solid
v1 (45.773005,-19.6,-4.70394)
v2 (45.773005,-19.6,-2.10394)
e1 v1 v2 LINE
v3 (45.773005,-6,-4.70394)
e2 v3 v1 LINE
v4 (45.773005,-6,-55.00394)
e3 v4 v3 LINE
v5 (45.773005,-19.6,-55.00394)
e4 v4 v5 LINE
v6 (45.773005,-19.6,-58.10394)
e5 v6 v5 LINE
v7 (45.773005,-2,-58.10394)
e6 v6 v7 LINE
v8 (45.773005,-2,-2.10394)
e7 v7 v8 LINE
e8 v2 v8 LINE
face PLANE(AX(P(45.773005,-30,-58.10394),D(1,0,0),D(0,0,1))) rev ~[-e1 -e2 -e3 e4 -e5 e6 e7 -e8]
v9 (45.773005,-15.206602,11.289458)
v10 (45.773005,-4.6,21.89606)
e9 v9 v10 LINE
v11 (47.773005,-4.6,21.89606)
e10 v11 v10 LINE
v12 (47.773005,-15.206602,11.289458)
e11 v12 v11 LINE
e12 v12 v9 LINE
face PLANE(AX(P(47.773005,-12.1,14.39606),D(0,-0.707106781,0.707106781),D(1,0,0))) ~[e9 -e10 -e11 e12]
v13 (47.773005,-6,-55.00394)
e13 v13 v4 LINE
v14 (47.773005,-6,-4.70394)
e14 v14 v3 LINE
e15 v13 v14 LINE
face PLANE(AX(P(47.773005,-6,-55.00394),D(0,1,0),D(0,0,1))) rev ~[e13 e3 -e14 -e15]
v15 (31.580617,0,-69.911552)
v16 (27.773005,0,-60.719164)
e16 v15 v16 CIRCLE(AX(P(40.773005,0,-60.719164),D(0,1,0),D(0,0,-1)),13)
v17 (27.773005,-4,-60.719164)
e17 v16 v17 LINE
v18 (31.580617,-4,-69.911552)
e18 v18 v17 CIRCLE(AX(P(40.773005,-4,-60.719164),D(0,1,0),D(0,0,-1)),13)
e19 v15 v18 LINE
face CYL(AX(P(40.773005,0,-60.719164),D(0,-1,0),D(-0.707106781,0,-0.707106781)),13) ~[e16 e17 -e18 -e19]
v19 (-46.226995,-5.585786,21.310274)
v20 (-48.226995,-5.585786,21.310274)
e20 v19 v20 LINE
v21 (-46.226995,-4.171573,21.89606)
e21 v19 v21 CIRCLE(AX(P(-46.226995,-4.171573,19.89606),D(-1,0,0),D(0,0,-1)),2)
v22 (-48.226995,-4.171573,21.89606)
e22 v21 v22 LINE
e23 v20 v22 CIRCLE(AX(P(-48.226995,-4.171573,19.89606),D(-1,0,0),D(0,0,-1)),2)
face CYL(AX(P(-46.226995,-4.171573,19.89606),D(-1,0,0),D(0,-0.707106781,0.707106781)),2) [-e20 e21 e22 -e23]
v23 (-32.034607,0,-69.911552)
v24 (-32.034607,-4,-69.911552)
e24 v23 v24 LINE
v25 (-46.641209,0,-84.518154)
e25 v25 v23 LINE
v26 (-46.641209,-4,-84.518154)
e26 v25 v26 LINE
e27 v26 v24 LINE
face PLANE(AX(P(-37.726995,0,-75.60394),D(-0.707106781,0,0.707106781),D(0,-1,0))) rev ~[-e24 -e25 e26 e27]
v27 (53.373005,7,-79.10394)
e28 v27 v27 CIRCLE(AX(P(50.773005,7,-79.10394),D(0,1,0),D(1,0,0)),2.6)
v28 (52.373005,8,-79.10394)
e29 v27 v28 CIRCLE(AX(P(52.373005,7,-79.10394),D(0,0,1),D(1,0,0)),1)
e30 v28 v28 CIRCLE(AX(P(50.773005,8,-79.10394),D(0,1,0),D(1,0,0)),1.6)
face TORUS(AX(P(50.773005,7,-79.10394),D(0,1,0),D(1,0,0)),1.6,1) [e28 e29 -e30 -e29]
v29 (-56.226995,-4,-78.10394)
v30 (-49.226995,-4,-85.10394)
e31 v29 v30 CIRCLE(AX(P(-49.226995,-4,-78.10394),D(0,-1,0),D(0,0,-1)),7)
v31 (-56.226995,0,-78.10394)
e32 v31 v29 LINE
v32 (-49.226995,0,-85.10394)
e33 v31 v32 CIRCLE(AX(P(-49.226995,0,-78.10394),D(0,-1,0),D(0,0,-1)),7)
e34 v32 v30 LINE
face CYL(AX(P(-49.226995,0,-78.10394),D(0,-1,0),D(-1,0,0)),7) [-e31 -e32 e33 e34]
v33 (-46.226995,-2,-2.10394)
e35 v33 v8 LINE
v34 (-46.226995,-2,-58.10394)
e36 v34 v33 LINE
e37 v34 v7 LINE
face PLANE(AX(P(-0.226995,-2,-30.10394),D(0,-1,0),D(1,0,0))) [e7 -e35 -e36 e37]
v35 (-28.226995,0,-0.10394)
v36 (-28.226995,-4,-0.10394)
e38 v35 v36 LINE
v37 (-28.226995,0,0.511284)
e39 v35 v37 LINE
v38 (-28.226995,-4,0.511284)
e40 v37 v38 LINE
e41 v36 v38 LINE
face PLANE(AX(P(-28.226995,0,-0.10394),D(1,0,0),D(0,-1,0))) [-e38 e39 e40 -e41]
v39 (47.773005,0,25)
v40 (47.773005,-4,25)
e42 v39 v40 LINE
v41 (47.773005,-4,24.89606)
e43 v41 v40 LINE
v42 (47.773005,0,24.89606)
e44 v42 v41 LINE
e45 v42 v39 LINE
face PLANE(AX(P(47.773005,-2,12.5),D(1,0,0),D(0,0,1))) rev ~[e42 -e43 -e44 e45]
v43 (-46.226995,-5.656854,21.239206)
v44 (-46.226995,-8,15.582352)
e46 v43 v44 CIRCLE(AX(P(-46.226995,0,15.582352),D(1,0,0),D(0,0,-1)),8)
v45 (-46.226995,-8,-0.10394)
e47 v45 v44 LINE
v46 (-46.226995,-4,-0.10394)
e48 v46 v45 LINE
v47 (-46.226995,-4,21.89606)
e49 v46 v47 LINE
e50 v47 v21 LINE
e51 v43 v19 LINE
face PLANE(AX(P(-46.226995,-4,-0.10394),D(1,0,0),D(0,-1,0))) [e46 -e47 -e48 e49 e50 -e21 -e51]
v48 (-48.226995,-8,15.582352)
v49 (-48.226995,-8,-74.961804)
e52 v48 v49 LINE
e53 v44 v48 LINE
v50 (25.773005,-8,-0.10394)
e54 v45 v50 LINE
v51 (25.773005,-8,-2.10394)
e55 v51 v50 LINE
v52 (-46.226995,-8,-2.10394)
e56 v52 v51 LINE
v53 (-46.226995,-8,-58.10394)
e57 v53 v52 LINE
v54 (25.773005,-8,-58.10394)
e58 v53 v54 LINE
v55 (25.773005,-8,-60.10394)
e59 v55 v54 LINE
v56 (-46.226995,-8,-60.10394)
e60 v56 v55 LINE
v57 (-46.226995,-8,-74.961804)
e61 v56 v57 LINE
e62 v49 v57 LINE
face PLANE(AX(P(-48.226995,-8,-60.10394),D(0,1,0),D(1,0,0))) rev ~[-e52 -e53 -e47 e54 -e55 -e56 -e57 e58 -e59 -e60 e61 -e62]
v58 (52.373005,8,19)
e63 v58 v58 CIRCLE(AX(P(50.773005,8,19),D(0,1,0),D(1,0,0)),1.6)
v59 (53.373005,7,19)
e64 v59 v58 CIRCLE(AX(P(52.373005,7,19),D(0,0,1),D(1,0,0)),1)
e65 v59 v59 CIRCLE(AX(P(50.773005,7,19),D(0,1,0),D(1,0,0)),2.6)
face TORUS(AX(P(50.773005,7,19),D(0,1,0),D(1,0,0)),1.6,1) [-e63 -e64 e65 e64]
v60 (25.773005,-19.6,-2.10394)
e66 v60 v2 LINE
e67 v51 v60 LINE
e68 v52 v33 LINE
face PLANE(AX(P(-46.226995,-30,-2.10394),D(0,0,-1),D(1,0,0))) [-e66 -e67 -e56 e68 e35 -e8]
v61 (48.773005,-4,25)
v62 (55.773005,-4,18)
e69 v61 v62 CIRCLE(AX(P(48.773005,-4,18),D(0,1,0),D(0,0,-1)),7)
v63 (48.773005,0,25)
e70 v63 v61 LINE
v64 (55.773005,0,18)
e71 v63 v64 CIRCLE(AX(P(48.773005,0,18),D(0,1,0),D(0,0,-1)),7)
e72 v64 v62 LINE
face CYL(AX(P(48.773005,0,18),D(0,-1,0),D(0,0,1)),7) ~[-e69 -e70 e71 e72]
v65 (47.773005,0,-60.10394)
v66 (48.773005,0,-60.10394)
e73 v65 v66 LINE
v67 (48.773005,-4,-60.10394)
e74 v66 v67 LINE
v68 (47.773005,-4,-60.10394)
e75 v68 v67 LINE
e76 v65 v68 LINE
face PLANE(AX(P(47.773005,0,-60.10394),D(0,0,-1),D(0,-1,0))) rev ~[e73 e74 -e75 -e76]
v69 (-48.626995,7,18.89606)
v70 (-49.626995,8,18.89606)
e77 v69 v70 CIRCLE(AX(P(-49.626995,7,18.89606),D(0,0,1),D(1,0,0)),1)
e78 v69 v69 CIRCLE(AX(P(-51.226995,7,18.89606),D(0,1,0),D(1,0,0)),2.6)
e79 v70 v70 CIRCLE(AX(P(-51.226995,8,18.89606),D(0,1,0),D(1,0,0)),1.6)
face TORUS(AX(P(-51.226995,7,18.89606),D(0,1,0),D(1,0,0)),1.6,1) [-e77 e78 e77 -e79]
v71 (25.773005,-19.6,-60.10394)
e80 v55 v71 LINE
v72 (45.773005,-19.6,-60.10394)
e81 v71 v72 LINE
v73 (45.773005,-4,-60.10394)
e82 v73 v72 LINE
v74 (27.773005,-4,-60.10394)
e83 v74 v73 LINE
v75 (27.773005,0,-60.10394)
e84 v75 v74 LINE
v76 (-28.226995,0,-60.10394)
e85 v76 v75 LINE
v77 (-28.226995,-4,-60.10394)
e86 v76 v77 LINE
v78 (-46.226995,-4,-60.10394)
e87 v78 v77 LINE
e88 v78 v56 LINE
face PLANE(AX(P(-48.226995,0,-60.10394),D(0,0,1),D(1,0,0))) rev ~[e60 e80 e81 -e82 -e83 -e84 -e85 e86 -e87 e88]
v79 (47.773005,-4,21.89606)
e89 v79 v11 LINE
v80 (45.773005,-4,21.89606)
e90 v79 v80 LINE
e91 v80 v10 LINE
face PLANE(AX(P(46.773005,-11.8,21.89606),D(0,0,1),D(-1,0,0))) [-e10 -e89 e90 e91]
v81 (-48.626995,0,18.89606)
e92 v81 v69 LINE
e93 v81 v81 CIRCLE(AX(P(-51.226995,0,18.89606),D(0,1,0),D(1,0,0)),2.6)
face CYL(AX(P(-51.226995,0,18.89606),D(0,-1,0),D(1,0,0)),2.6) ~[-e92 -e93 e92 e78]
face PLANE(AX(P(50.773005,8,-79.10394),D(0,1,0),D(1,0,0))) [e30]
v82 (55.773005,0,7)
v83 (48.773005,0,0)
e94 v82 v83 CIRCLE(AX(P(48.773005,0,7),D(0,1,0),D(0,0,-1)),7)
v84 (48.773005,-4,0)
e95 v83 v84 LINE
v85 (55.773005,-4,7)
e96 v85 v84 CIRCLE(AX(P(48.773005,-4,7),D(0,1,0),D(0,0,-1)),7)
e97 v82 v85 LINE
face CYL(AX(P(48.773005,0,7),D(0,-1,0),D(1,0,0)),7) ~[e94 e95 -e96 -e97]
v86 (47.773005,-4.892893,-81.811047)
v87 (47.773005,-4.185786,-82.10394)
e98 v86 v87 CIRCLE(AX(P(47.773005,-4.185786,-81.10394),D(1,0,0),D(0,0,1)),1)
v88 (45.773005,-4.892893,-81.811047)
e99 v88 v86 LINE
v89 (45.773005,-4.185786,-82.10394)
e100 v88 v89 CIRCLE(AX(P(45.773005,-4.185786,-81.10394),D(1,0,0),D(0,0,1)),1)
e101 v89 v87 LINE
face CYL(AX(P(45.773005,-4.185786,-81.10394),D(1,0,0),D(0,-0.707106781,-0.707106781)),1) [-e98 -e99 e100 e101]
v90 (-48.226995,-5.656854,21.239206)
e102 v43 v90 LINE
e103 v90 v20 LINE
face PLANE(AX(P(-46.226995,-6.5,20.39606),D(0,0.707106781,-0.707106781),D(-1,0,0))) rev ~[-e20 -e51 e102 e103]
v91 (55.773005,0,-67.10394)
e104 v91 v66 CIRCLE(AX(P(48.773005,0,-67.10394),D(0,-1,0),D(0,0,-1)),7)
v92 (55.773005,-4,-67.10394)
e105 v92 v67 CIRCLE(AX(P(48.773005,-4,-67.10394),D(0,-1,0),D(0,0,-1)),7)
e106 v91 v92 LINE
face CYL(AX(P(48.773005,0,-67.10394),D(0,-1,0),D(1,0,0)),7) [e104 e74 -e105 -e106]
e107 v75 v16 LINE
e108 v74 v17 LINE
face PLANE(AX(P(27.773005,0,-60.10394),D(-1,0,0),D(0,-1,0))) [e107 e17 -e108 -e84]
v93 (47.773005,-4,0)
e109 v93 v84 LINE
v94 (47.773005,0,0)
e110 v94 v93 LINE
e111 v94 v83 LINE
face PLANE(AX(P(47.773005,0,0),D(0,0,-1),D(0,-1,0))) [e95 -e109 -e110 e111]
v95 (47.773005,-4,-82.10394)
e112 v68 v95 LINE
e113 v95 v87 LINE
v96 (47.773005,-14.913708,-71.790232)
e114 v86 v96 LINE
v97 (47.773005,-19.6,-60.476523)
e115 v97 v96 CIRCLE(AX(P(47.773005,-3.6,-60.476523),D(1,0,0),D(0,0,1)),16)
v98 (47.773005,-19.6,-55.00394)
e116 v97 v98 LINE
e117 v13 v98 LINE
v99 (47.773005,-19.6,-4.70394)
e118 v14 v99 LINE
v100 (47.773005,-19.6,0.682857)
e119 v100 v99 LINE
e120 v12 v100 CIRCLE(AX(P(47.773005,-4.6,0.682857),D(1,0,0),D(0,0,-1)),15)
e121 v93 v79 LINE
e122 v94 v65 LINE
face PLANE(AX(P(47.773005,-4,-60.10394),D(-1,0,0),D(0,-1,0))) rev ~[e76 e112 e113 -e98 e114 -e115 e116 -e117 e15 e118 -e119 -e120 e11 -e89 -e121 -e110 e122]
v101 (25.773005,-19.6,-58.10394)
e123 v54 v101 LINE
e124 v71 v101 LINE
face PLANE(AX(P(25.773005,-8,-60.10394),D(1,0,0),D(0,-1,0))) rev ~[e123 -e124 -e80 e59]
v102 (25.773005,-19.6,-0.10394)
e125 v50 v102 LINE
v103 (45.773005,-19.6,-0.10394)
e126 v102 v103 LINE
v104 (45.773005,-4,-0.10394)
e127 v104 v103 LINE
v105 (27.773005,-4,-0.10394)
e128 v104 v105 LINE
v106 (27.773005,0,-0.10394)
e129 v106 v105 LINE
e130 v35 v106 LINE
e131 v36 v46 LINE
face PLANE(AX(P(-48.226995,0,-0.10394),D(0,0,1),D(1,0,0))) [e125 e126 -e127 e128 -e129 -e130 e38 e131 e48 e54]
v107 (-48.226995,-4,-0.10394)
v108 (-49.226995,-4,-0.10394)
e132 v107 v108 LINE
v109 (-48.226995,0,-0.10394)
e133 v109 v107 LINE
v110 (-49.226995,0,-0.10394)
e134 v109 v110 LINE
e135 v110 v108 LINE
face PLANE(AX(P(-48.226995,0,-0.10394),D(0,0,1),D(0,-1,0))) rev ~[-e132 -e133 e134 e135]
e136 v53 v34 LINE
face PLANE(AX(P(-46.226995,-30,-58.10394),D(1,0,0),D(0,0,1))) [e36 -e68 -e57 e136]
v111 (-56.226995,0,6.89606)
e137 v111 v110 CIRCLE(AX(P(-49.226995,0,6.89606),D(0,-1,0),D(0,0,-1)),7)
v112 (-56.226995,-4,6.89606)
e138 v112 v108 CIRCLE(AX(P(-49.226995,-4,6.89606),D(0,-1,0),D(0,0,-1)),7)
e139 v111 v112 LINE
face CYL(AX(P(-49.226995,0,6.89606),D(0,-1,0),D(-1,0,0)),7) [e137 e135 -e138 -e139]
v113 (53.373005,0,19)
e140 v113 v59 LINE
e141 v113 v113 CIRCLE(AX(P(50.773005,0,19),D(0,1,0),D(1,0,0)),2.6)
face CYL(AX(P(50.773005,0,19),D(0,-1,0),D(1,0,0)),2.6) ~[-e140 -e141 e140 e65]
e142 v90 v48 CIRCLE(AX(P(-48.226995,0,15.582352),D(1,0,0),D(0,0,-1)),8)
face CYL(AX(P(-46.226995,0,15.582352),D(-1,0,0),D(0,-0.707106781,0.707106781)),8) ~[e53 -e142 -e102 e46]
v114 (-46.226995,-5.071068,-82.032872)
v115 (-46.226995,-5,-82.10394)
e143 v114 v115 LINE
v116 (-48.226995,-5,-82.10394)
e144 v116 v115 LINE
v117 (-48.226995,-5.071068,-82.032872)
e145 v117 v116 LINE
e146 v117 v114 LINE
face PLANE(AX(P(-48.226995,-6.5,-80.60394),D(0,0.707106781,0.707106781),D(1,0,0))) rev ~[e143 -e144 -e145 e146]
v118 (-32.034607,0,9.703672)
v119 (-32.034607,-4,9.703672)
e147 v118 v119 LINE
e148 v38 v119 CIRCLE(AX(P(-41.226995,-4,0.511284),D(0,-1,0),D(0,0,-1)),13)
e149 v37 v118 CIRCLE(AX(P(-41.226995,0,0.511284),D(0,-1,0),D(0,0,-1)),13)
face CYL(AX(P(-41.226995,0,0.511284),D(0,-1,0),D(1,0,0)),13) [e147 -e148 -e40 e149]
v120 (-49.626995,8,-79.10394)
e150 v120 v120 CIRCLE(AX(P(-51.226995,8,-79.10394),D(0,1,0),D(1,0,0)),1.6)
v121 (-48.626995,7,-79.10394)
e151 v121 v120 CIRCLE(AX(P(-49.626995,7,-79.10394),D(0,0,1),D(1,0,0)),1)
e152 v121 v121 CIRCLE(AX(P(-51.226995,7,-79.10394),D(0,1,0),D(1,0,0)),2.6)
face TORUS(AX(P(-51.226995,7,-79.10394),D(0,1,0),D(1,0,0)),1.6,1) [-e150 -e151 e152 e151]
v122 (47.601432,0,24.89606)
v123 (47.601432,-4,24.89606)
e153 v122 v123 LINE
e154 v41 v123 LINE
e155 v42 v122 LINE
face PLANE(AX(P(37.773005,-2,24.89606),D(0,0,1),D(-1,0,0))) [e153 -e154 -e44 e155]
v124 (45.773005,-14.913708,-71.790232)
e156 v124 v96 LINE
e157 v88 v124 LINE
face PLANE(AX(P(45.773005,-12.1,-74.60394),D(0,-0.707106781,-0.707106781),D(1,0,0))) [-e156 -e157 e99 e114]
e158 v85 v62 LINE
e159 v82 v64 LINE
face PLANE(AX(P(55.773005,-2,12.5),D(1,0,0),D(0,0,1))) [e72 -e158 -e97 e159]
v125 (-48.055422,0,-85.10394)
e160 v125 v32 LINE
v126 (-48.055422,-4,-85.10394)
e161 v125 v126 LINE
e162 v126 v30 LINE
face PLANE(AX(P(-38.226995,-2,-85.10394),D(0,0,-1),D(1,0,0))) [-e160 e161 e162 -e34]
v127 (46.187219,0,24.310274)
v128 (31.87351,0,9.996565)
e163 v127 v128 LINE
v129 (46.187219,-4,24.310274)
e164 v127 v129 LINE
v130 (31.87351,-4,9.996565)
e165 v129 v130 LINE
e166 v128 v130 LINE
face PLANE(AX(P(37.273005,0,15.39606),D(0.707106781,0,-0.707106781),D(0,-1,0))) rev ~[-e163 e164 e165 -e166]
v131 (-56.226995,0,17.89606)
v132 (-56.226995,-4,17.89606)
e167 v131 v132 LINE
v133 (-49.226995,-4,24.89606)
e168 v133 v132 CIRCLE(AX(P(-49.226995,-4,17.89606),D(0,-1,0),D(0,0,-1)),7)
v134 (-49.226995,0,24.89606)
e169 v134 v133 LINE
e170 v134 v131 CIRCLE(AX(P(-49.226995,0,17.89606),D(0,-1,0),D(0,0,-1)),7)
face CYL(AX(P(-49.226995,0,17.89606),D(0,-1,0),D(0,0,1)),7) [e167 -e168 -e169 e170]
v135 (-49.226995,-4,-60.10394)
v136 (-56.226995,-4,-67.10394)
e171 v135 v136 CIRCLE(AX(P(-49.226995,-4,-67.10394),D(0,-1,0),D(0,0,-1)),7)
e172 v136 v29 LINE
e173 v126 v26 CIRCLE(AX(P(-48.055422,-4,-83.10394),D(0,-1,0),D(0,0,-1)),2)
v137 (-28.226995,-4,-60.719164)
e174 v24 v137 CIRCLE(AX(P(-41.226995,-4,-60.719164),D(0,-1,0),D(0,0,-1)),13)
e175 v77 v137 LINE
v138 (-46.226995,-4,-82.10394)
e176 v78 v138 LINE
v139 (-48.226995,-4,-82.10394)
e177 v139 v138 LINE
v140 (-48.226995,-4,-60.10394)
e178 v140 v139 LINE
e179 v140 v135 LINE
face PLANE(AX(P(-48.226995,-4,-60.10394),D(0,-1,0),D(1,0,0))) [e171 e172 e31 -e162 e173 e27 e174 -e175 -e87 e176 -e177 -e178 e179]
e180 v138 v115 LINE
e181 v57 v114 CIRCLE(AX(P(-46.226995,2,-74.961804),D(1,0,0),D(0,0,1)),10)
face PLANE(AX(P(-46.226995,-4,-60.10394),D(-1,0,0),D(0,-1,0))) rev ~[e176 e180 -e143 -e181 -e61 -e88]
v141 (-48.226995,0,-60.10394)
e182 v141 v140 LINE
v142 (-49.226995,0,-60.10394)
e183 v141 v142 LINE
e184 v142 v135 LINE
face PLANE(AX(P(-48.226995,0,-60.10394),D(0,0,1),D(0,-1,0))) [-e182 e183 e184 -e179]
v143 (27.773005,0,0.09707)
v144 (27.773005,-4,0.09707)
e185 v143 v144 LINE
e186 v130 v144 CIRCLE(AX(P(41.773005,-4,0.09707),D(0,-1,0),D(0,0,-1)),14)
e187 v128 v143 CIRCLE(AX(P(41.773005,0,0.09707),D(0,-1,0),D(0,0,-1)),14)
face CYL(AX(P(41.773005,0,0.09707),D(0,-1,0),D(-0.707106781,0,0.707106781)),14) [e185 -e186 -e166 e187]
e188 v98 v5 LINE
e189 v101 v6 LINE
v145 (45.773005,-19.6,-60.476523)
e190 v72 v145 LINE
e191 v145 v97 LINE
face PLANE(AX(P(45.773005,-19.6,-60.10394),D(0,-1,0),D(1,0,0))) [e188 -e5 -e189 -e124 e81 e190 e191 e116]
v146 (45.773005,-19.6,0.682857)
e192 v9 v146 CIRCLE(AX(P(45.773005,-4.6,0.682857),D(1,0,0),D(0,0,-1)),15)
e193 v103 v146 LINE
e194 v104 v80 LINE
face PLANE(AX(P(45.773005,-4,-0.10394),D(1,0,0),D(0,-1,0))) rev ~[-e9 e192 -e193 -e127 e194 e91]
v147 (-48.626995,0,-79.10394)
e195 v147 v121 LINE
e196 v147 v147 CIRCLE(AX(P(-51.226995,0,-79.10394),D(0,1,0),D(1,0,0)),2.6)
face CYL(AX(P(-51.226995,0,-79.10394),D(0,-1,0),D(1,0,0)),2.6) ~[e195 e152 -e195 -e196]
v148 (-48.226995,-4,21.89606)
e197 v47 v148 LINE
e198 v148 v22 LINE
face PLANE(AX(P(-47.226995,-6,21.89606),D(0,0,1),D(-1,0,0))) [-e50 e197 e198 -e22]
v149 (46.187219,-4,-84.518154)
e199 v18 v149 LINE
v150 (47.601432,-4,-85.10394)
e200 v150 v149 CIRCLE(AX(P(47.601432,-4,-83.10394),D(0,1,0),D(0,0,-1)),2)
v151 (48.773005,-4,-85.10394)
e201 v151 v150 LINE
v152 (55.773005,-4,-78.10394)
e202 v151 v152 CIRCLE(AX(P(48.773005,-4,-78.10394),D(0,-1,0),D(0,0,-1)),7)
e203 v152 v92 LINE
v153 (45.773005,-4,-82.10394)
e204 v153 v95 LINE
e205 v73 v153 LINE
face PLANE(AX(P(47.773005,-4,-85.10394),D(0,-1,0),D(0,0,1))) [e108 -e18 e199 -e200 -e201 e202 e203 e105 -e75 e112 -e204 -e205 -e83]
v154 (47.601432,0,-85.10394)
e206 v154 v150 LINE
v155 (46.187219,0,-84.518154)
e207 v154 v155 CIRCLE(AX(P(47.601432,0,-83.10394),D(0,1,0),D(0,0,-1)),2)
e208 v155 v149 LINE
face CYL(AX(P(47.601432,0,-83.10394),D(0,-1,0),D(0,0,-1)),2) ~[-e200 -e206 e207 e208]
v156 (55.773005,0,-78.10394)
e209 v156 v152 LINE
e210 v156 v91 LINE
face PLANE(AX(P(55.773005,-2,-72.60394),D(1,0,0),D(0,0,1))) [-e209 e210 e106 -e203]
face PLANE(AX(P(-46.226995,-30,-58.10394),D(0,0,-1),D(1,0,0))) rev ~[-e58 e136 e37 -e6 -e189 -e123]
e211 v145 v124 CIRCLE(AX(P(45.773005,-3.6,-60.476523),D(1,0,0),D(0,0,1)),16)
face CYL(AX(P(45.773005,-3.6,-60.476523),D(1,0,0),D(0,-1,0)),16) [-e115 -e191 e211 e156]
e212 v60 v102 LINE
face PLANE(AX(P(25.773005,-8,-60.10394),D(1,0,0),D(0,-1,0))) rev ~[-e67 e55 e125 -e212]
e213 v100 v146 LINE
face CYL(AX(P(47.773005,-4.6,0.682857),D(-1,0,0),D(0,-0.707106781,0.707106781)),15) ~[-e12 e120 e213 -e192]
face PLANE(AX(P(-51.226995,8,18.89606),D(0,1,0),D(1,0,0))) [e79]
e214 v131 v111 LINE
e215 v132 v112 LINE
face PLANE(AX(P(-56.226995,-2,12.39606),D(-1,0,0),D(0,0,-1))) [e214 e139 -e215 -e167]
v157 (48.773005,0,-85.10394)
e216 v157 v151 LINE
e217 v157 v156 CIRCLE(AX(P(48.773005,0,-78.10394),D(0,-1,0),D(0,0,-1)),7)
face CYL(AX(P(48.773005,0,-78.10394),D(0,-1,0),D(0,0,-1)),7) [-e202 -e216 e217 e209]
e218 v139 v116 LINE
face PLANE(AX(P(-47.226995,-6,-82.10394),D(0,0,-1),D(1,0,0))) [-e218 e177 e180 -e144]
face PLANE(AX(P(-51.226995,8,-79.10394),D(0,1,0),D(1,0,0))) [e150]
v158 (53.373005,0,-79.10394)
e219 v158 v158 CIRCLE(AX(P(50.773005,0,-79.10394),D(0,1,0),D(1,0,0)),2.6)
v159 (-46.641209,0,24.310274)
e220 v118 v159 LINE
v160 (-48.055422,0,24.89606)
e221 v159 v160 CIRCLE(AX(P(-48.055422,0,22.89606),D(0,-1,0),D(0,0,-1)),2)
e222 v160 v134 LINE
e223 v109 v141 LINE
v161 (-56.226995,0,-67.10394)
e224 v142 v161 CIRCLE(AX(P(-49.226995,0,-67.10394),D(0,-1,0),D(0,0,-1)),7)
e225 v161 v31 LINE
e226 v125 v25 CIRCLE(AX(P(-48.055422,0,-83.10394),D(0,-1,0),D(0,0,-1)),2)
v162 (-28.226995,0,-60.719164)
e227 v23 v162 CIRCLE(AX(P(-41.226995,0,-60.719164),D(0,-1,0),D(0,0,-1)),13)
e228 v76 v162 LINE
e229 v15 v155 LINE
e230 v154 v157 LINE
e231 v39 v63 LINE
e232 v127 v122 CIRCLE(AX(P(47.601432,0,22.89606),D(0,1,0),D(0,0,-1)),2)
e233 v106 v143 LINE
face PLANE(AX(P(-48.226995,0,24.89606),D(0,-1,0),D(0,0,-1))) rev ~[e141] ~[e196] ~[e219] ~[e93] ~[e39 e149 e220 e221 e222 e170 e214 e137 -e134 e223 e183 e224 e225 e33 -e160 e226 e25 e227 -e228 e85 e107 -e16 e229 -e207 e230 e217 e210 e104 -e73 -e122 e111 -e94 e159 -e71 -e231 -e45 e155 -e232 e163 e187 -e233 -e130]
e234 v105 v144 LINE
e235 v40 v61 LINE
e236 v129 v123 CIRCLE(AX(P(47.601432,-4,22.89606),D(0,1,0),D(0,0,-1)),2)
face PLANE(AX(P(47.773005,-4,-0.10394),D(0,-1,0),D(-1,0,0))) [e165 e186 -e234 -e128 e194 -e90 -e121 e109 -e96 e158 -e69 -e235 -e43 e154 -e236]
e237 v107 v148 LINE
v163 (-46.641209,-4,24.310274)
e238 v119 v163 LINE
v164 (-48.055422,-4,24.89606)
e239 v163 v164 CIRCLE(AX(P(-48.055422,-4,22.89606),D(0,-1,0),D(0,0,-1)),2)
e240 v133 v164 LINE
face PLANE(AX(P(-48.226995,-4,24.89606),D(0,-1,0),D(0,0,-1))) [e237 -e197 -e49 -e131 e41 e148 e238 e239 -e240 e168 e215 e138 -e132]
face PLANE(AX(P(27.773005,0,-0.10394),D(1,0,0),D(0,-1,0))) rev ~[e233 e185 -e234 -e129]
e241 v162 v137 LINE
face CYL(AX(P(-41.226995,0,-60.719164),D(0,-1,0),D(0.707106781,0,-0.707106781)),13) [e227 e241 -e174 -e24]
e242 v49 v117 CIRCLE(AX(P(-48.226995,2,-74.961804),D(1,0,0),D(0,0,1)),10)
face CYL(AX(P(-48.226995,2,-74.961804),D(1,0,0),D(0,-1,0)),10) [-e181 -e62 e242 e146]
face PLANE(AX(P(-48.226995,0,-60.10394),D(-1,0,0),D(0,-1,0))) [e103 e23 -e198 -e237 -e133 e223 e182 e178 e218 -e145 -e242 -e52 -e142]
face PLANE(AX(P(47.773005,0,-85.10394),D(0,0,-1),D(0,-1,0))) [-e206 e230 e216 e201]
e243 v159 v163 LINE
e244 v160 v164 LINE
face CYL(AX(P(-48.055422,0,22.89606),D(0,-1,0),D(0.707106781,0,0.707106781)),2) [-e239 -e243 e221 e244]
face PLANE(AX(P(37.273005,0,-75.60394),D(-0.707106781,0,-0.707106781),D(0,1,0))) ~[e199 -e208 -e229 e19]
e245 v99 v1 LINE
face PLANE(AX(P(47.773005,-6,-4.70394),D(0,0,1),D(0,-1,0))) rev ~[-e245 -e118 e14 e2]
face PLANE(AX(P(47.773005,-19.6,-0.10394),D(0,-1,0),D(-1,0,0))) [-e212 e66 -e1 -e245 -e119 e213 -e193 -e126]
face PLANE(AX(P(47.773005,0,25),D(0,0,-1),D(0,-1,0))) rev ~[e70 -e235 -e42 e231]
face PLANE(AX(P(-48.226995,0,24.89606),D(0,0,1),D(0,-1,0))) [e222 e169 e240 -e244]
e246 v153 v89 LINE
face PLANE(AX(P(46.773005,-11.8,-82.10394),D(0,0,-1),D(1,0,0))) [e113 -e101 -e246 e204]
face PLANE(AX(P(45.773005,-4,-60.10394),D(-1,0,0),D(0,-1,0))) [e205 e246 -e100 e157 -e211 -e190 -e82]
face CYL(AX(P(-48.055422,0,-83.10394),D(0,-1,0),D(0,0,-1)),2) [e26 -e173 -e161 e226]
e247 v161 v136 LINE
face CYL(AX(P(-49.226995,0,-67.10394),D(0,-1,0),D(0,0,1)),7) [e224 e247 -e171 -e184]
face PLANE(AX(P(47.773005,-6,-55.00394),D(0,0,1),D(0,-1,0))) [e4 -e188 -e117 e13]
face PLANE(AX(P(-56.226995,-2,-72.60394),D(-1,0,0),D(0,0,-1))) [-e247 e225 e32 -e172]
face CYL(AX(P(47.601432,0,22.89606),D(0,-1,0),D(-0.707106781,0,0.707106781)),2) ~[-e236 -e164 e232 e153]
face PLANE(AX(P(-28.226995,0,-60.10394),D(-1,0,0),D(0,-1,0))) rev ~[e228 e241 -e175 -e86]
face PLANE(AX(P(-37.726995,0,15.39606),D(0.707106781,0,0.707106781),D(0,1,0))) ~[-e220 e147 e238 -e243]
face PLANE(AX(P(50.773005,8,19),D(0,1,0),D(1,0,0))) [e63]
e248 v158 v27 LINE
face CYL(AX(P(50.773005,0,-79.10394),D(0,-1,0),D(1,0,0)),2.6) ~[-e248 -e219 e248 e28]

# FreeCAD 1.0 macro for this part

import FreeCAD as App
import Part
import Sketcher
Q = App.Units.Quantity


def edges_at(feature, points):
    """Names of the edges that pass closest to the given points."""
    edges = feature.Shape.Edges
    near = lambda p: min(range(len(edges)), key=lambda i: edges[i].distToShape(Part.Vertex(*p))[0])
    return sorted({f"Edge{near(p) + 1}" for p in points})

doc = App.newDocument("Part")
body = doc.addObject("PartDesign::Body", "Body")

sketch1 = body.newObject("Sketcher::SketchObject", "Sketch")
sketch1.AttachmentSupport = (doc.getObject("XZ_Plane"), [""])
sketch1.MapMode = "FlatFace"
sketch1.addGeometry([
    Part.LineSegment(App.Vector(-48, 0, 0), App.Vector(-48, -60, 0)),
    Part.LineSegment(App.Vector(-48, -60, 0), App.Vector(48, -60, 0)),
    Part.LineSegment(App.Vector(48, -60, 0), App.Vector(48, 0, 0)),
    Part.LineSegment(App.Vector(48, 0, 0), App.Vector(-48, 0, 0)),
], False)
sketch1.addConstraint([
    Sketcher.Constraint("Coincident", 0, 2, 1, 1),
    Sketcher.Constraint("Coincident", 1, 2, 2, 1),
    Sketcher.Constraint("Coincident", 2, 2, 3, 1),
    Sketcher.Constraint("Coincident", 3, 2, 0, 1),
    Sketcher.Constraint("Vertical", 0),
    Sketcher.Constraint("Horizontal", 1),
    Sketcher.Constraint("Vertical", 2),
    Sketcher.Constraint("Horizontal", 3),
    Sketcher.Constraint("DistanceX", 1, 1, 1, 2, Q("96 mm")),
    Sketcher.Constraint("DistanceY", 0, 2, 0, 1, Q("60 mm")),
    Sketcher.Constraint("DistanceY", 0, 2, -1, 1, Q("60.10394 mm")),
    Sketcher.Constraint("DistanceX", 0, 2, -1, 1, Q("48.226995 mm")),
])
pad1 = body.newObject("PartDesign::Pad", "Pad")
pad1.Profile = sketch1
pad1.Length = 30

sketch2 = body.newObject("Sketcher::SketchObject", "Sketch001")
sketch2.AttachmentSupport = (doc.getObject("XZ_Plane"), [""])
sketch2.MapMode = "FlatFace"
sketch2.AttachmentOffset = App.Placement(App.Vector(0, 0, 30), App.Rotation())
sketch2.addGeometry([
    Part.LineSegment(App.Vector(-46, -2, 0), App.Vector(-46, -58, 0)),
    Part.LineSegment(App.Vector(-46, -58, 0), App.Vector(46, -58, 0)),
    Part.LineSegment(App.Vector(46, -58, 0), App.Vector(46, -2, 0)),
    Part.LineSegment(App.Vector(46, -2, 0), App.Vector(-46, -2, 0)),
], False)
sketch2.addConstraint([
    Sketcher.Constraint("Coincident", 0, 2, 1, 1),
    Sketcher.Constraint("Coincident", 1, 2, 2, 1),
    Sketcher.Constraint("Coincident", 2, 2, 3, 1),
    Sketcher.Constraint("Coincident", 3, 2, 0, 1),
    Sketcher.Constraint("Vertical", 0),
    Sketcher.Constraint("Horizontal", 1),
    Sketcher.Constraint("Vertical", 2),
    Sketcher.Constraint("Horizontal", 3),
    Sketcher.Constraint("DistanceX", 1, 1, 1, 2, Q("92 mm")),
    Sketcher.Constraint("DistanceY", 0, 2, 0, 1, Q("56 mm")),
    Sketcher.Constraint("DistanceY", 0, 2, -1, 1, Q("58.10394 mm")),
    Sketcher.Constraint("DistanceX", 0, 2, -1, 1, Q("46.226995 mm")),
])
pocket1 = body.newObject("PartDesign::Pocket", "Pocket")
pocket1.Profile = sketch2
pocket1.Length = 28

sketch3 = body.newObject("Sketcher::SketchObject", "Sketch002")
sketch3.AttachmentSupport = (doc.getObject("XY_Plane"), [""])
sketch3.MapMode = "FlatFace"
sketch3.AttachmentOffset = App.Placement(App.Vector(0, 0, -60.10394), App.Rotation())
sketch3.addGeometry([
    Part.LineSegment(App.Vector(-48, -30, 0), App.Vector(-48, -8, 0)),
    Part.LineSegment(App.Vector(-48, -8, 0), App.Vector(26, -8, 0)),
    Part.LineSegment(App.Vector(26, -8, 0), App.Vector(26, -30, 0)),
    Part.LineSegment(App.Vector(26, -30, 0), App.Vector(-48, -30, 0)),
], False)
sketch3.addConstraint([
    Sketcher.Constraint("Coincident", 0, 2, 1, 1),
    Sketcher.Constraint("Coincident", 1, 2, 2, 1),
    Sketcher.Constraint("Coincident", 2, 2, 3, 1),
    Sketcher.Constraint("Coincident", 3, 2, 0, 1),
    Sketcher.Constraint("Vertical", 0),
    Sketcher.Constraint("Horizontal", 1),
    Sketcher.Constraint("Vertical", 2),
    Sketcher.Constraint("Horizontal", 3),
    Sketcher.Constraint("DistanceX", 1, 1, 1, 2, Q("74 mm")),
    Sketcher.Constraint("DistanceY", 0, 1, 0, 2, Q("22 mm")),
    Sketcher.Constraint("DistanceY", 0, 2, -1, 1, Q("8 mm")),
    Sketcher.Constraint("DistanceX", 0, 2, -1, 1, Q("48.226995 mm")),
])
pocket2 = body.newObject("PartDesign::Pocket", "Pocket001")
pocket2.Profile = sketch3
pocket2.Length = 60
pocket2.Reversed = True

sketch4 = body.newObject("Sketcher::SketchObject", "Sketch003")
sketch4.AttachmentSupport = (doc.getObject("XY_Plane"), [""])
sketch4.MapMode = "FlatFace"
sketch4.AttachmentOffset = App.Placement(App.Vector(0, 0, -60.10394), App.Rotation())
sketch4.addGeometry([
    Part.LineSegment(App.Vector(25.8, -30, 0), App.Vector(25.8, -26, 0)),
    Part.LineSegment(App.Vector(25.8, -26, 0), App.Vector(47.8, -26, 0)),
    Part.LineSegment(App.Vector(47.8, -26, 0), App.Vector(47.8, -30, 0)),
    Part.LineSegment(App.Vector(47.8, -30, 0), App.Vector(25.8, -30, 0)),
], False)
sketch4.addConstraint([
    Sketcher.Constraint("Coincident", 0, 2, 1, 1),
    Sketcher.Constraint("Coincident", 1, 2, 2, 1),
    Sketcher.Constraint("Coincident", 2, 2, 3, 1),
    Sketcher.Constraint("Coincident", 3, 2, 0, 1),
    Sketcher.Constraint("Vertical", 0),
    Sketcher.Constraint("Horizontal", 1),
    Sketcher.Constraint("Vertical", 2),
    Sketcher.Constraint("Horizontal", 3),
    Sketcher.Constraint("DistanceX", 1, 1, 1, 2, Q("22 mm")),
    Sketcher.Constraint("DistanceY", 0, 1, 0, 2, Q("4 mm")),
    Sketcher.Constraint("DistanceY", 0, 2, -1, 1, Q("26 mm")),
    Sketcher.Constraint("DistanceX", -1, 1, 0, 2, Q("25.773005 mm")),
])
pocket3 = body.newObject("PartDesign::Pocket", "Pocket002")
pocket3.Profile = sketch4
pocket3.Length = 60
pocket3.Reversed = True

sketch5 = body.newObject("Sketcher::SketchObject", "Sketch004")
sketch5.AttachmentSupport = (doc.getObject("XY_Plane"), [""])
sketch5.MapMode = "FlatFace"
sketch5.AttachmentOffset = App.Placement(App.Vector(0, 0, -60.10394), App.Rotation())
sketch5.addGeometry([
    Part.LineSegment(App.Vector(26, -26, 0), App.Vector(26, -20, 0)),
    Part.LineSegment(App.Vector(26, -20, 0), App.Vector(48, -20, 0)),
    Part.LineSegment(App.Vector(48, -20, 0), App.Vector(48, -26, 0)),
    Part.LineSegment(App.Vector(48, -26, 0), App.Vector(26, -26, 0)),
], False)
sketch5.addConstraint([
    Sketcher.Constraint("Coincident", 0, 2, 1, 1),
    Sketcher.Constraint("Coincident", 1, 2, 2, 1),
    Sketcher.Constraint("Coincident", 2, 2, 3, 1),
    Sketcher.Constraint("Coincident", 3, 2, 0, 1),
    Sketcher.Constraint("Vertical", 0),
    Sketcher.Constraint("Horizontal", 1),
    Sketcher.Constraint("Vertical", 2),
    Sketcher.Constraint("Horizontal", 3),
    Sketcher.Constraint("DistanceX", 1, 1, 1, 2, Q("22 mm")),
    Sketcher.Constraint("DistanceY", 0, 1, 0, 2, Q("6.4 mm")),
    Sketcher.Constraint("DistanceY", 2, 2, -1, 1, Q("26 mm")),
    Sketcher.Constraint("DistanceX", -1, 1, 0, 2, Q("25.773005 mm")),
])
pocket4 = body.newObject("PartDesign::Pocket", "Pocket003")
pocket4.Profile = sketch5
pocket4.Length = 60
pocket4.Reversed = True

sketch6 = body.newObject("Sketcher::SketchObject", "Sketch005")
sketch6.AttachmentSupport = (doc.getObject("YZ_Plane"), [""])
sketch6.MapMode = "FlatFace"
sketch6.AttachmentOffset = App.Placement(App.Vector(0, 0, 47.773005), App.Rotation())
sketch6.addGeometry([
    Part.LineSegment(App.Vector(-20, -55, 0), App.Vector(-6, -55, 0)),
    Part.LineSegment(App.Vector(-6, -55, 0), App.Vector(-6, -5, 0)),
    Part.LineSegment(App.Vector(-6, -5, 0), App.Vector(-20, -5, 0)),
    Part.LineSegment(App.Vector(-20, -5, 0), App.Vector(-20, -55, 0)),
], False)
sketch6.addConstraint([
    Sketcher.Constraint("Coincident", 0, 2, 1, 1),
    Sketcher.Constraint("Coincident", 1, 2, 2, 1),
    Sketcher.Constraint("Coincident", 2, 2, 3, 1),
    Sketcher.Constraint("Coincident", 3, 2, 0, 1),
    Sketcher.Constraint("Horizontal", 0),
    Sketcher.Constraint("Vertical", 1),
    Sketcher.Constraint("Horizontal", 2),
    Sketcher.Constraint("Vertical", 3),
    Sketcher.Constraint("DistanceX", 0, 1, 0, 2, Q("13.6 mm")),
    Sketcher.Constraint("DistanceY", 1, 1, 1, 2, Q("50.3 mm")),
    Sketcher.Constraint("DistanceX", 0, 2, -1, 1, Q("6 mm")),
    Sketcher.Constraint("DistanceY", 0, 2, -1, 1, Q("55.00394 mm")),
])
pocket5 = body.newObject("PartDesign::Pocket", "Pocket004")
pocket5.Profile = sketch6
pocket5.Length = 5

sketch7 = body.newObject("Sketcher::SketchObject", "Sketch006")
sketch7.AttachmentSupport = (doc.getObject("XY_Plane"), [""])
sketch7.MapMode = "FlatFace"
sketch7.AttachmentOffset = App.Placement(App.Vector(0, 0, -0.10394), App.Rotation())
sketch7.addGeometry([
    Part.LineSegment(App.Vector(47.8, -4, 0), App.Vector(47.8, 0, 0)),
    Part.LineSegment(App.Vector(47.8, 0, 0), App.Vector(27.8, 0, 0)),
    Part.LineSegment(App.Vector(27.8, 0, 0), App.Vector(27.8, -4, 0)),
    Part.LineSegment(App.Vector(27.8, -4, 0), App.Vector(47.8, -4, 0)),
    Part.LineSegment(App.Vector(-28.2, -4, 0), App.Vector(-28.2, 0, 0)),
    Part.LineSegment(App.Vector(-28.2, 0, 0), App.Vector(-48.2, 0, 0)),
    Part.LineSegment(App.Vector(-48.2, 0, 0), App.Vector(-48.2, -4, 0)),
    Part.LineSegment(App.Vector(-48.2, -4, 0), App.Vector(-28.2, -4, 0)),
], False)
sketch7.addConstraint([
    Sketcher.Constraint("Coincident", 0, 2, 1, 1),
    Sketcher.Constraint("Coincident", 1, 2, 2, 1),
    Sketcher.Constraint("Coincident", 2, 2, 3, 1),
    Sketcher.Constraint("Coincident", 3, 2, 0, 1),
    Sketcher.Constraint("Coincident", 4, 2, 5, 1),
    Sketcher.Constraint("Coincident", 5, 2, 6, 1),
    Sketcher.Constraint("Coincident", 6, 2, 7, 1),
    Sketcher.Constraint("Coincident", 7, 2, 4, 1),
    Sketcher.Constraint("Vertical", 0),
    Sketcher.Constraint("Horizontal", 1),
    Sketcher.Constraint("Vertical", 2),
    Sketcher.Constraint("Horizontal", 3),
    Sketcher.Constraint("Vertical", 4),
    Sketcher.Constraint("Horizontal", 5),
    Sketcher.Constraint("Vertical", 6),
    Sketcher.Constraint("Horizontal", 7),
    Sketcher.Constraint("PointOnObject", 0, 2, -1),
    Sketcher.Constraint("PointOnObject", 4, 2, -1),
    Sketcher.Constraint("Horizontal", 3, 2, 6, 2),
    Sketcher.Constraint("Equal", 3, 5),
    Sketcher.Constraint("DistanceX", 1, 2, 1, 1, Q("20 mm")),
    Sketcher.Constraint("DistanceY", 0, 1, 0, 2, Q("4 mm")),
    Sketcher.Constraint("DistanceX", 4, 2, 1, 2, Q("56 mm")),
    Sketcher.Constraint("DistanceX", -1, 1, 0, 2, Q("47.773005 mm")),
])
pad2 = body.newObject("PartDesign::Pad", "Pad001")
pad2.Profile = sketch7
pad2.Length = 25

sketch8 = body.newObject("Sketcher::SketchObject", "Sketch007")
sketch8.AttachmentSupport = (doc.getObject("XY_Plane"), [""])
sketch8.MapMode = "FlatFace"
sketch8.AttachmentOffset = App.Placement(App.Vector(0, 0, -60.10394), App.Rotation())
sketch8.addGeometry([
    Part.LineSegment(App.Vector(-48.2, -4, 0), App.Vector(-48.2, 0, 0)),
    Part.LineSegment(App.Vector(-48.2, 0, 0), App.Vector(-28.2, 0, 0)),
    Part.LineSegment(App.Vector(-28.2, 0, 0), App.Vector(-28.2, -4, 0)),
    Part.LineSegment(App.Vector(-28.2, -4, 0), App.Vector(-48.2, -4, 0)),
    Part.LineSegment(App.Vector(27.8, -4, 0), App.Vector(27.8, 0, 0)),
    Part.LineSegment(App.Vector(27.8, 0, 0), App.Vector(47.8, 0, 0)),
    Part.LineSegment(App.Vector(47.8, 0, 0), App.Vector(47.8, -4, 0)),
    Part.LineSegment(App.Vector(47.8, -4, 0), App.Vector(27.8, -4, 0)),
], False)
sketch8.addConstraint([
    Sketcher.Constraint("Coincident", 0, 2, 1, 1),
    Sketcher.Constraint("Coincident", 1, 2, 2, 1),
    Sketcher.Constraint("Coincident", 2, 2, 3, 1),
    Sketcher.Constraint("Coincident", 3, 2, 0, 1),
    Sketcher.Constraint("Coincident", 4, 2, 5, 1),
    Sketcher.Constraint("Coincident", 5, 2, 6, 1),
    Sketcher.Constraint("Coincident", 6, 2, 7, 1),
    Sketcher.Constraint("Coincident", 7, 2, 4, 1),
    Sketcher.Constraint("Vertical", 0),
    Sketcher.Constraint("Horizontal", 1),
    Sketcher.Constraint("Vertical", 2),
    Sketcher.Constraint("Horizontal", 3),
    Sketcher.Constraint("Vertical", 4),
    Sketcher.Constraint("Horizontal", 5),
    Sketcher.Constraint("Vertical", 6),
    Sketcher.Constraint("Horizontal", 7),
    Sketcher.Constraint("PointOnObject", 0, 2, -1),
    Sketcher.Constraint("PointOnObject", 4, 2, -1),
    Sketcher.Constraint("Horizontal", 3, 2, 6, 2),
    Sketcher.Constraint("Equal", 3, 5),
    Sketcher.Constraint("DistanceX", 1, 1, 1, 2, Q("20 mm")),
    Sketcher.Constraint("DistanceY", 0, 1, 0, 2, Q("4 mm")),
    Sketcher.Constraint("DistanceX", 1, 2, 4, 2, Q("56 mm")),
    Sketcher.Constraint("DistanceX", 0, 2, -1, 1, Q("48.226995 mm")),
])
pad3 = body.newObject("PartDesign::Pad", "Pad002")
pad3.Profile = sketch8
pad3.Length = 25
pad3.Reversed = True

sketch9 = body.newObject("Sketcher::SketchObject", "Sketch008")
sketch9.AttachmentSupport = (doc.getObject("YZ_Plane"), [""])
sketch9.MapMode = "FlatFace"
sketch9.AttachmentOffset = App.Placement(App.Vector(0, 0, 47.773005), App.Rotation())
sketch9.addGeometry([
    Part.LineSegment(App.Vector(-4, -85.1, 0), App.Vector(0, -85.1, 0)),
    Part.LineSegment(App.Vector(0, -85.1, 0), App.Vector(0, -60.1, 0)),
    Part.LineSegment(App.Vector(0, -60.1, 0), App.Vector(-4, -60.1, 0)),
    Part.LineSegment(App.Vector(-4, -60.1, 0), App.Vector(-4, -85.1, 0)),
    Part.LineSegment(App.Vector(-4, 0, 0), App.Vector(0, 0, 0)),
    Part.LineSegment(App.Vector(0, 0, 0), App.Vector(0, 25, 0)),
    Part.LineSegment(App.Vector(0, 25, 0), App.Vector(-4, 25, 0)),
    Part.LineSegment(App.Vector(-4, 25, 0), App.Vector(-4, 0, 0)),
], False)
sketch9.addConstraint([
    Sketcher.Constraint("Coincident", 0, 2, 1, 1),
    Sketcher.Constraint("Coincident", 1, 2, 2, 1),
    Sketcher.Constraint("Coincident", 2, 2, 3, 1),
    Sketcher.Constraint("Coincident", 3, 2, 0, 1),
    Sketcher.Constraint("Coincident", 4, 2, 5, 1),
    Sketcher.Constraint("Coincident", 5, 2, 6, 1),
    Sketcher.Constraint("Coincident", 6, 2, 7, 1),
    Sketcher.Constraint("Coincident", 7, 2, 4, 1),
    Sketcher.Constraint("Horizontal", 0),
    Sketcher.Constraint("Vertical", 1),
    Sketcher.Constraint("Horizontal", 2),
    Sketcher.Constraint("Vertical", 3),
    Sketcher.Constraint("Horizontal", 4),
    Sketcher.Constraint("Vertical", 5),
    Sketcher.Constraint("Horizontal", 6),
    Sketcher.Constraint("Vertical", 7),
    Sketcher.Constraint("Coincident", 4, 2, -1, 1),
    Sketcher.Constraint("PointOnObject", 0, 2, -2),
    Sketcher.Constraint("Vertical", 3, 2, 6, 2),
    Sketcher.Constraint("Equal", 3, 5),
    Sketcher.Constraint("DistanceX", 0, 1, 0, 2, Q("4 mm")),
    Sketcher.Constraint("DistanceY", 1, 1, 1, 2, Q("25 mm")),
    Sketcher.Constraint("DistanceY", 0, 2, -1, 1, Q("85.10394 mm")),
])
pad4 = body.newObject("PartDesign::Pad", "Pad003")
pad4.Profile = sketch9
pad4.Length = 8

sketch10 = body.newObject("Sketcher::SketchObject", "Sketch009")
sketch10.AttachmentSupport = (doc.getObject("YZ_Plane"), [""])
sketch10.MapMode = "FlatFace"
sketch10.AttachmentOffset = App.Placement(App.Vector(0, 0, -48.226995), App.Rotation())
sketch10.addGeometry([
    Part.LineSegment(App.Vector(-4, 24.9, 0), App.Vector(0, 24.9, 0)),
    Part.LineSegment(App.Vector(0, 24.9, 0), App.Vector(0, -0.1, 0)),
    Part.LineSegment(App.Vector(0, -0.1, 0), App.Vector(-4, -0.1, 0)),
    Part.LineSegment(App.Vector(-4, -0.1, 0), App.Vector(-4, 24.9, 0)),
    Part.LineSegment(App.Vector(-4, -60.1, 0), App.Vector(0, -60.1, 0)),
    Part.LineSegment(App.Vector(0, -60.1, 0), App.Vector(0, -85.1, 0)),
    Part.LineSegment(App.Vector(0, -85.1, 0), App.Vector(-4, -85.1, 0)),
    Part.LineSegment(App.Vector(-4, -85.1, 0), App.Vector(-4, -60.1, 0)),
], False)
sketch10.addConstraint([
    Sketcher.Constraint("Coincident", 0, 2, 1, 1),
    Sketcher.Constraint("Coincident", 1, 2, 2, 1),
    Sketcher.Constraint("Coincident", 2, 2, 3, 1),
    Sketcher.Constraint("Coincident", 3, 2, 0, 1),
    Sketcher.Constraint("Coincident", 4, 2, 5, 1),
    Sketcher.Constraint("Coincident", 5, 2, 6, 1),
    Sketcher.Constraint("Coincident", 6, 2, 7, 1),
    Sketcher.Constraint("Coincident", 7, 2, 4, 1),
    Sketcher.Constraint("Horizontal", 0),
    Sketcher.Constraint("Vertical", 1),
    Sketcher.Constraint("Horizontal", 2),
    Sketcher.Constraint("Vertical", 3),
    Sketcher.Constraint("Horizontal", 4),
    Sketcher.Constraint("Vertical", 5),
    Sketcher.Constraint("Horizontal", 6),
    Sketcher.Constraint("Vertical", 7),
    Sketcher.Constraint("PointOnObject", 0, 2, -2),
    Sketcher.Constraint("PointOnObject", 4, 2, -2),
    Sketcher.Constraint("Vertical", 3, 2, 6, 2),
    Sketcher.Constraint("Equal", 3, 5),
    Sketcher.Constraint("DistanceX", 0, 1, 0, 2, Q("4 mm")),
    Sketcher.Constraint("DistanceY", 1, 2, 1, 1, Q("25 mm")),
    Sketcher.Constraint("DistanceY", 4, 2, 1, 2, Q("60 mm")),
    Sketcher.Constraint("DistanceY", -1, 1, 0, 2, Q("24.89606 mm")),
])
pad5 = body.newObject("PartDesign::Pad", "Pad004")
pad5.Profile = sketch10
pad5.Length = 8
pad5.Reversed = True

sketch11 = body.newObject("Sketcher::SketchObject", "Sketch010")
sketch11.AttachmentSupport = (doc.getObject("XZ_Plane"), [""])
sketch11.MapMode = "FlatFace"
sketch11.addGeometry([
    Part.Circle(App.Vector(50.8, -79.1, 0), App.Vector(0, 0, 1), 2.6),
    Part.Circle(App.Vector(50.8, 19, 0), App.Vector(0, 0, 1), 2.6),
    Part.Circle(App.Vector(-51.2, 18.9, 0), App.Vector(0, 0, 1), 2.6),
    Part.Circle(App.Vector(-51.2, -79.1, 0), App.Vector(0, 0, 1), 2.6),
], False)
sketch11.addConstraint([
    Sketcher.Constraint("Equal", 0, 1),
    Sketcher.Constraint("Equal", 1, 2),
    Sketcher.Constraint("Equal", 2, 3),
    Sketcher.Constraint("Horizontal", 0, 3, 3, 3),
    Sketcher.Constraint("Vertical", 0, 3, 1, 3),
    Sketcher.Constraint("Vertical", 2, 3, 3, 3),
    Sketcher.Constraint("Diameter", 0, Q("5.2 mm")),
    Sketcher.Constraint("DistanceY", -1, 1, 1, 3, Q("19 mm")),
    Sketcher.Constraint("DistanceX", 2, 3, 1, 3, Q("102 mm")),
    Sketcher.Constraint("DistanceY", 0, 3, 2, 3, Q("98 mm")),
    Sketcher.Constraint("DistanceY", 0, 3, -1, 1, Q("79.10394 mm")),
    Sketcher.Constraint("DistanceX", -1, 1, 0, 3, Q("50.773005 mm")),
])
pad6 = body.newObject("PartDesign::Pad", "Pad005")
pad6.Profile = sketch11
pad6.Length = 8
pad6.Reversed = True
doc.recompute()

fillet = body.newObject("PartDesign::Fillet", "Fillet")
fillet.Base = (pad6, edges_at(pad6, [(48.173, 8, 19)]))
fillet.Radius = 1
doc.recompute()

fillet2 = body.newObject("PartDesign::Fillet", "Fillet001")
fillet2.Base = (fillet, edges_at(fillet, [(48.173, 8, -79.104)]))
fillet2.Radius = 1
doc.recompute()

fillet3 = body.newObject("PartDesign::Fillet", "Fillet002")
fillet3.Base = (fillet2, edges_at(fillet2, [(-53.827, 8, -79.104)]))
fillet3.Radius = 1
doc.recompute()

fillet4 = body.newObject("PartDesign::Fillet", "Fillet003")
fillet4.Base = (fillet3, edges_at(fillet3, [(-53.827, 8, 18.896)]))
fillet4.Radius = 1
doc.recompute()

chamfer = body.newObject("PartDesign::Chamfer", "Chamfer")
chamfer.Base = (fillet4, edges_at(fillet4, [(27.773, -2, -85.104)]))
chamfer.Size = 19
doc.recompute()

fillet5 = body.newObject("PartDesign::Fillet", "Fillet004")
fillet5.Base = (chamfer, edges_at(chamfer, [(55.773, -2, -85.104)]))
fillet5.Radius = 7
doc.recompute()

fillet6 = body.newObject("PartDesign::Fillet", "Fillet005")
fillet6.Base = (fillet5, edges_at(fillet5, [(46.773, -2, -85.104)]))
fillet6.Radius = 2
doc.recompute()

fillet7 = body.newObject("PartDesign::Fillet", "Fillet006")
fillet7.Base = (fillet6, edges_at(fillet6, [(27.773, -2, -66.104)]))
fillet7.Radius = 13
doc.recompute()

fillet8 = body.newObject("PartDesign::Fillet", "Fillet007")
fillet8.Base = (fillet7, edges_at(fillet7, [(55.773, -2, -60.104)]))
fillet8.Radius = 7
doc.recompute()

chamfer2 = body.newObject("PartDesign::Chamfer", "Chamfer001")
chamfer2.Base = (fillet8, edges_at(fillet8, [(27.773, -2, 24.896)]))
chamfer2.Size = 19
doc.recompute()

fillet9 = body.newObject("PartDesign::Fillet", "Fillet008")
fillet9.Base = (chamfer2, edges_at(chamfer2, [(27.773, -2, 5.896)]))
fillet9.Radius = 14
doc.recompute()

fillet10 = body.newObject("PartDesign::Fillet", "Fillet009")
fillet10.Base = (fillet9, edges_at(fillet9, [(46.773, -2, 24.896)]))
fillet10.Radius = 2
doc.recompute()

fillet11 = body.newObject("PartDesign::Fillet", "Fillet010")
fillet11.Base = (fillet10, edges_at(fillet10, [(55.773, -2, 25)]))
fillet11.Radius = 7
doc.recompute()

fillet12 = body.newObject("PartDesign::Fillet", "Fillet011")
fillet12.Base = (fillet11, edges_at(fillet11, [(55.773, -2, 0)]))
fillet12.Radius = 7
doc.recompute()

chamfer3 = body.newObject("PartDesign::Chamfer", "Chamfer002")
chamfer3.Base = (fillet12, edges_at(fillet12, [(-28.227, -2, 24.896)]))
chamfer3.Size = 19
doc.recompute()

fillet13 = body.newObject("PartDesign::Fillet", "Fillet012")
fillet13.Base = (chamfer3, edges_at(chamfer3, [(-28.227, -2, 5.896)]))
fillet13.Radius = 13
doc.recompute()

fillet14 = body.newObject("PartDesign::Fillet", "Fillet013")
fillet14.Base = (fillet13, edges_at(fillet13, [(-47.227, -2, 24.896)]))
fillet14.Radius = 2
doc.recompute()

fillet15 = body.newObject("PartDesign::Fillet", "Fillet014")
fillet15.Base = (fillet14, edges_at(fillet14, [(-56.227, -2, 24.896)]))
fillet15.Radius = 7
doc.recompute()

fillet16 = body.newObject("PartDesign::Fillet", "Fillet015")
fillet16.Base = (fillet15, edges_at(fillet15, [(-56.227, -2, -0.104)]))
fillet16.Radius = 7
doc.recompute()

fillet17 = body.newObject("PartDesign::Fillet", "Fillet016")
fillet17.Base = (fillet16, edges_at(fillet16, [(-56.227, -2, -60.104)]))
fillet17.Radius = 7
doc.recompute()

fillet18 = body.newObject("PartDesign::Fillet", "Fillet017")
fillet18.Base = (fillet17, edges_at(fillet17, [(-56.227, -2, -85.104)]))
fillet18.Radius = 7
doc.recompute()

chamfer4 = body.newObject("PartDesign::Chamfer", "Chamfer003")
chamfer4.Base = (fillet18, edges_at(fillet18, [(-28.227, -2, -85.104)]))
chamfer4.Size = 19
doc.recompute()

fillet19 = body.newObject("PartDesign::Fillet", "Fillet018")
fillet19.Base = (chamfer4, edges_at(chamfer4, [(-47.227, -2, -85.104)]))
fillet19.Radius = 2
doc.recompute()

fillet20 = body.newObject("PartDesign::Fillet", "Fillet019")
fillet20.Base = (fillet19, edges_at(fillet19, [(-28.227, -2, -66.104)]))
fillet20.Radius = 13

sketch12 = body.newObject("Sketcher::SketchObject", "Sketch011")
sketch12.AttachmentSupport = (doc.getObject("XY_Plane"), [""])
sketch12.MapMode = "FlatFace"
sketch12.AttachmentOffset = App.Placement(App.Vector(0, 0, -0.10394), App.Rotation())
sketch12.addGeometry([
    Part.LineSegment(App.Vector(47.8, -19.6, 0), App.Vector(47.8, -4, 0)),
    Part.LineSegment(App.Vector(47.8, -4, 0), App.Vector(45.8, -4, 0)),
    Part.LineSegment(App.Vector(45.8, -4, 0), App.Vector(45.8, -19.6, 0)),
    Part.LineSegment(App.Vector(45.8, -19.6, 0), App.Vector(47.8, -19.6, 0)),
    Part.LineSegment(App.Vector(-46.2, -8, 0), App.Vector(-46.2, -4, 0)),
    Part.LineSegment(App.Vector(-46.2, -4, 0), App.Vector(-48.2, -4, 0)),
    Part.LineSegment(App.Vector(-48.2, -4, 0), App.Vector(-48.2, -8, 0)),
    Part.LineSegment(App.Vector(-48.2, -8, 0), App.Vector(-46.2, -8, 0)),
], False)
sketch12.addConstraint([
    Sketcher.Constraint("Coincident", 0, 2, 1, 1),
    Sketcher.Constraint("Coincident", 1, 2, 2, 1),
    Sketcher.Constraint("Coincident", 2, 2, 3, 1),
    Sketcher.Constraint("Coincident", 3, 2, 0, 1),
    Sketcher.Constraint("Coincident", 4, 2, 5, 1),
    Sketcher.Constraint("Coincident", 5, 2, 6, 1),
    Sketcher.Constraint("Coincident", 6, 2, 7, 1),
    Sketcher.Constraint("Coincident", 7, 2, 4, 1),
    Sketcher.Constraint("Vertical", 0),
    Sketcher.Constraint("Horizontal", 1),
    Sketcher.Constraint("Vertical", 2),
    Sketcher.Constraint("Horizontal", 3),
    Sketcher.Constraint("Vertical", 4),
    Sketcher.Constraint("Horizontal", 5),
    Sketcher.Constraint("Vertical", 6),
    Sketcher.Constraint("Horizontal", 7),
    Sketcher.Constraint("Horizontal", 1, 2, 4, 2),
    Sketcher.Constraint("Equal", 3, 5),
    Sketcher.Constraint("DistanceX", 1, 2, 1, 1, Q("2 mm")),
    Sketcher.Constraint("DistanceY", 4, 1, 4, 2, Q("4 mm")),
    Sketcher.Constraint("DistanceY", 0, 1, 0, 2, Q("15.6 mm")),
    Sketcher.Constraint("DistanceY", 0, 2, -1, 1, Q("4 mm")),
    Sketcher.Constraint("DistanceX", 4, 2, 1, 2, Q("92 mm")),
    Sketcher.Constraint("DistanceX", -1, 1, 0, 2, Q("47.773005 mm")),
])
pad7 = body.newObject("PartDesign::Pad", "Pad006")
pad7.Profile = sketch12
pad7.Length = 22
doc.recompute()

chamfer5 = body.newObject("PartDesign::Chamfer", "Chamfer004")
chamfer5.Base = (pad7, edges_at(pad7, [(46.773, -19.6, 21.896)]))
chamfer5.Size = 15
doc.recompute()

fillet21 = body.newObject("PartDesign::Fillet", "Fillet020")
fillet21.Base = (chamfer5, edges_at(chamfer5, [(46.773, -19.6, 6.896)]))
fillet21.Radius = 15
doc.recompute()

chamfer6 = body.newObject("PartDesign::Chamfer", "Chamfer005")
chamfer6.Base = (fillet21, edges_at(fillet21, [(-47.227, -8, 21.896)]))
chamfer6.Size = 3
doc.recompute()

fillet22 = body.newObject("PartDesign::Fillet", "Fillet021")
fillet22.Base = (chamfer6, edges_at(chamfer6, [(-47.227, -5, 21.896)]))
fillet22.Radius = 2
doc.recompute()

fillet23 = body.newObject("PartDesign::Fillet", "Fillet022")
fillet23.Base = (fillet22, edges_at(fillet22, [(-47.227, -8, 18.896)]))
fillet23.Radius = 8

sketch13 = body.newObject("Sketcher::SketchObject", "Sketch012")
sketch13.AttachmentSupport = (doc.getObject("XY_Plane"), [""])
sketch13.MapMode = "FlatFace"
sketch13.AttachmentOffset = App.Placement(App.Vector(0, 0, -60.10394), App.Rotation())
sketch13.addGeometry([
    Part.LineSegment(App.Vector(45.8, -19.6, 0), App.Vector(45.8, -4, 0)),
    Part.LineSegment(App.Vector(45.8, -4, 0), App.Vector(47.8, -4, 0)),
    Part.LineSegment(App.Vector(47.8, -4, 0), App.Vector(47.8, -19.6, 0)),
    Part.LineSegment(App.Vector(47.8, -19.6, 0), App.Vector(45.8, -19.6, 0)),
    Part.LineSegment(App.Vector(-48.2, -8, 0), App.Vector(-48.2, -4, 0)),
    Part.LineSegment(App.Vector(-48.2, -4, 0), App.Vector(-46.2, -4, 0)),
    Part.LineSegment(App.Vector(-46.2, -4, 0), App.Vector(-46.2, -8, 0)),
    Part.LineSegment(App.Vector(-46.2, -8, 0), App.Vector(-48.2, -8, 0)),
], False)
sketch13.addConstraint([
    Sketcher.Constraint("Coincident", 0, 2, 1, 1),
    Sketcher.Constraint("Coincident", 1, 2, 2, 1),
    Sketcher.Constraint("Coincident", 2, 2, 3, 1),
    Sketcher.Constraint("Coincident", 3, 2, 0, 1),
    Sketcher.Constraint("Coincident", 4, 2, 5, 1),
    Sketcher.Constraint("Coincident", 5, 2, 6, 1),
    Sketcher.Constraint("Coincident", 6, 2, 7, 1),
    Sketcher.Constraint("Coincident", 7, 2, 4, 1),
    Sketcher.Constraint("Vertical", 0),
    Sketcher.Constraint("Horizontal", 1),
    Sketcher.Constraint("Vertical", 2),
    Sketcher.Constraint("Horizontal", 3),
    Sketcher.Constraint("Vertical", 4),
    Sketcher.Constraint("Horizontal", 5),
    Sketcher.Constraint("Vertical", 6),
    Sketcher.Constraint("Horizontal", 7),
    Sketcher.Constraint("Horizontal", 1, 2, 4, 2),
    Sketcher.Constraint("Equal", 3, 5),
    Sketcher.Constraint("DistanceX", 1, 1, 1, 2, Q("2 mm")),
    Sketcher.Constraint("DistanceY", 4, 1, 4, 2, Q("4 mm")),
    Sketcher.Constraint("DistanceY", 0, 1, 0, 2, Q("15.6 mm")),
    Sketcher.Constraint("DistanceY", 0, 2, -1, 1, Q("4 mm")),
    Sketcher.Constraint("DistanceX", 4, 2, 0, 2, Q("94 mm")),
    Sketcher.Constraint("DistanceX", -1, 1, 0, 2, Q("45.773005 mm")),
])
pad8 = body.newObject("PartDesign::Pad", "Pad007")
pad8.Profile = sketch13
pad8.Length = 22
pad8.Reversed = True
doc.recompute()

chamfer7 = body.newObject("PartDesign::Chamfer", "Chamfer006")
chamfer7.Base = (pad8, edges_at(pad8, [(46.773, -19.6, -82.104)]))
chamfer7.Size = 15
doc.recompute()

fillet24 = body.newObject("PartDesign::Fillet", "Fillet023")
fillet24.Base = (chamfer7, edges_at(chamfer7, [(46.773, -19.6, -67.104)]))
fillet24.Radius = 16
doc.recompute()

fillet25 = body.newObject("PartDesign::Fillet", "Fillet024")
fillet25.Base = (fillet24, edges_at(fillet24, [(46.773, -4.6, -82.104)]))
fillet25.Radius = 1
doc.recompute()

chamfer8 = body.newObject("PartDesign::Chamfer", "Chamfer007")
chamfer8.Base = (fillet25, edges_at(fillet25, [(-47.227, -8, -82.104)]))
chamfer8.Size = 3
doc.recompute()

fillet26 = body.newObject("PartDesign::Fillet", "Fillet025")
fillet26.Base = (chamfer8, edges_at(chamfer8, [(-47.227, -8, -79.104)]))
fillet26.Radius = 10

doc.recompute()
